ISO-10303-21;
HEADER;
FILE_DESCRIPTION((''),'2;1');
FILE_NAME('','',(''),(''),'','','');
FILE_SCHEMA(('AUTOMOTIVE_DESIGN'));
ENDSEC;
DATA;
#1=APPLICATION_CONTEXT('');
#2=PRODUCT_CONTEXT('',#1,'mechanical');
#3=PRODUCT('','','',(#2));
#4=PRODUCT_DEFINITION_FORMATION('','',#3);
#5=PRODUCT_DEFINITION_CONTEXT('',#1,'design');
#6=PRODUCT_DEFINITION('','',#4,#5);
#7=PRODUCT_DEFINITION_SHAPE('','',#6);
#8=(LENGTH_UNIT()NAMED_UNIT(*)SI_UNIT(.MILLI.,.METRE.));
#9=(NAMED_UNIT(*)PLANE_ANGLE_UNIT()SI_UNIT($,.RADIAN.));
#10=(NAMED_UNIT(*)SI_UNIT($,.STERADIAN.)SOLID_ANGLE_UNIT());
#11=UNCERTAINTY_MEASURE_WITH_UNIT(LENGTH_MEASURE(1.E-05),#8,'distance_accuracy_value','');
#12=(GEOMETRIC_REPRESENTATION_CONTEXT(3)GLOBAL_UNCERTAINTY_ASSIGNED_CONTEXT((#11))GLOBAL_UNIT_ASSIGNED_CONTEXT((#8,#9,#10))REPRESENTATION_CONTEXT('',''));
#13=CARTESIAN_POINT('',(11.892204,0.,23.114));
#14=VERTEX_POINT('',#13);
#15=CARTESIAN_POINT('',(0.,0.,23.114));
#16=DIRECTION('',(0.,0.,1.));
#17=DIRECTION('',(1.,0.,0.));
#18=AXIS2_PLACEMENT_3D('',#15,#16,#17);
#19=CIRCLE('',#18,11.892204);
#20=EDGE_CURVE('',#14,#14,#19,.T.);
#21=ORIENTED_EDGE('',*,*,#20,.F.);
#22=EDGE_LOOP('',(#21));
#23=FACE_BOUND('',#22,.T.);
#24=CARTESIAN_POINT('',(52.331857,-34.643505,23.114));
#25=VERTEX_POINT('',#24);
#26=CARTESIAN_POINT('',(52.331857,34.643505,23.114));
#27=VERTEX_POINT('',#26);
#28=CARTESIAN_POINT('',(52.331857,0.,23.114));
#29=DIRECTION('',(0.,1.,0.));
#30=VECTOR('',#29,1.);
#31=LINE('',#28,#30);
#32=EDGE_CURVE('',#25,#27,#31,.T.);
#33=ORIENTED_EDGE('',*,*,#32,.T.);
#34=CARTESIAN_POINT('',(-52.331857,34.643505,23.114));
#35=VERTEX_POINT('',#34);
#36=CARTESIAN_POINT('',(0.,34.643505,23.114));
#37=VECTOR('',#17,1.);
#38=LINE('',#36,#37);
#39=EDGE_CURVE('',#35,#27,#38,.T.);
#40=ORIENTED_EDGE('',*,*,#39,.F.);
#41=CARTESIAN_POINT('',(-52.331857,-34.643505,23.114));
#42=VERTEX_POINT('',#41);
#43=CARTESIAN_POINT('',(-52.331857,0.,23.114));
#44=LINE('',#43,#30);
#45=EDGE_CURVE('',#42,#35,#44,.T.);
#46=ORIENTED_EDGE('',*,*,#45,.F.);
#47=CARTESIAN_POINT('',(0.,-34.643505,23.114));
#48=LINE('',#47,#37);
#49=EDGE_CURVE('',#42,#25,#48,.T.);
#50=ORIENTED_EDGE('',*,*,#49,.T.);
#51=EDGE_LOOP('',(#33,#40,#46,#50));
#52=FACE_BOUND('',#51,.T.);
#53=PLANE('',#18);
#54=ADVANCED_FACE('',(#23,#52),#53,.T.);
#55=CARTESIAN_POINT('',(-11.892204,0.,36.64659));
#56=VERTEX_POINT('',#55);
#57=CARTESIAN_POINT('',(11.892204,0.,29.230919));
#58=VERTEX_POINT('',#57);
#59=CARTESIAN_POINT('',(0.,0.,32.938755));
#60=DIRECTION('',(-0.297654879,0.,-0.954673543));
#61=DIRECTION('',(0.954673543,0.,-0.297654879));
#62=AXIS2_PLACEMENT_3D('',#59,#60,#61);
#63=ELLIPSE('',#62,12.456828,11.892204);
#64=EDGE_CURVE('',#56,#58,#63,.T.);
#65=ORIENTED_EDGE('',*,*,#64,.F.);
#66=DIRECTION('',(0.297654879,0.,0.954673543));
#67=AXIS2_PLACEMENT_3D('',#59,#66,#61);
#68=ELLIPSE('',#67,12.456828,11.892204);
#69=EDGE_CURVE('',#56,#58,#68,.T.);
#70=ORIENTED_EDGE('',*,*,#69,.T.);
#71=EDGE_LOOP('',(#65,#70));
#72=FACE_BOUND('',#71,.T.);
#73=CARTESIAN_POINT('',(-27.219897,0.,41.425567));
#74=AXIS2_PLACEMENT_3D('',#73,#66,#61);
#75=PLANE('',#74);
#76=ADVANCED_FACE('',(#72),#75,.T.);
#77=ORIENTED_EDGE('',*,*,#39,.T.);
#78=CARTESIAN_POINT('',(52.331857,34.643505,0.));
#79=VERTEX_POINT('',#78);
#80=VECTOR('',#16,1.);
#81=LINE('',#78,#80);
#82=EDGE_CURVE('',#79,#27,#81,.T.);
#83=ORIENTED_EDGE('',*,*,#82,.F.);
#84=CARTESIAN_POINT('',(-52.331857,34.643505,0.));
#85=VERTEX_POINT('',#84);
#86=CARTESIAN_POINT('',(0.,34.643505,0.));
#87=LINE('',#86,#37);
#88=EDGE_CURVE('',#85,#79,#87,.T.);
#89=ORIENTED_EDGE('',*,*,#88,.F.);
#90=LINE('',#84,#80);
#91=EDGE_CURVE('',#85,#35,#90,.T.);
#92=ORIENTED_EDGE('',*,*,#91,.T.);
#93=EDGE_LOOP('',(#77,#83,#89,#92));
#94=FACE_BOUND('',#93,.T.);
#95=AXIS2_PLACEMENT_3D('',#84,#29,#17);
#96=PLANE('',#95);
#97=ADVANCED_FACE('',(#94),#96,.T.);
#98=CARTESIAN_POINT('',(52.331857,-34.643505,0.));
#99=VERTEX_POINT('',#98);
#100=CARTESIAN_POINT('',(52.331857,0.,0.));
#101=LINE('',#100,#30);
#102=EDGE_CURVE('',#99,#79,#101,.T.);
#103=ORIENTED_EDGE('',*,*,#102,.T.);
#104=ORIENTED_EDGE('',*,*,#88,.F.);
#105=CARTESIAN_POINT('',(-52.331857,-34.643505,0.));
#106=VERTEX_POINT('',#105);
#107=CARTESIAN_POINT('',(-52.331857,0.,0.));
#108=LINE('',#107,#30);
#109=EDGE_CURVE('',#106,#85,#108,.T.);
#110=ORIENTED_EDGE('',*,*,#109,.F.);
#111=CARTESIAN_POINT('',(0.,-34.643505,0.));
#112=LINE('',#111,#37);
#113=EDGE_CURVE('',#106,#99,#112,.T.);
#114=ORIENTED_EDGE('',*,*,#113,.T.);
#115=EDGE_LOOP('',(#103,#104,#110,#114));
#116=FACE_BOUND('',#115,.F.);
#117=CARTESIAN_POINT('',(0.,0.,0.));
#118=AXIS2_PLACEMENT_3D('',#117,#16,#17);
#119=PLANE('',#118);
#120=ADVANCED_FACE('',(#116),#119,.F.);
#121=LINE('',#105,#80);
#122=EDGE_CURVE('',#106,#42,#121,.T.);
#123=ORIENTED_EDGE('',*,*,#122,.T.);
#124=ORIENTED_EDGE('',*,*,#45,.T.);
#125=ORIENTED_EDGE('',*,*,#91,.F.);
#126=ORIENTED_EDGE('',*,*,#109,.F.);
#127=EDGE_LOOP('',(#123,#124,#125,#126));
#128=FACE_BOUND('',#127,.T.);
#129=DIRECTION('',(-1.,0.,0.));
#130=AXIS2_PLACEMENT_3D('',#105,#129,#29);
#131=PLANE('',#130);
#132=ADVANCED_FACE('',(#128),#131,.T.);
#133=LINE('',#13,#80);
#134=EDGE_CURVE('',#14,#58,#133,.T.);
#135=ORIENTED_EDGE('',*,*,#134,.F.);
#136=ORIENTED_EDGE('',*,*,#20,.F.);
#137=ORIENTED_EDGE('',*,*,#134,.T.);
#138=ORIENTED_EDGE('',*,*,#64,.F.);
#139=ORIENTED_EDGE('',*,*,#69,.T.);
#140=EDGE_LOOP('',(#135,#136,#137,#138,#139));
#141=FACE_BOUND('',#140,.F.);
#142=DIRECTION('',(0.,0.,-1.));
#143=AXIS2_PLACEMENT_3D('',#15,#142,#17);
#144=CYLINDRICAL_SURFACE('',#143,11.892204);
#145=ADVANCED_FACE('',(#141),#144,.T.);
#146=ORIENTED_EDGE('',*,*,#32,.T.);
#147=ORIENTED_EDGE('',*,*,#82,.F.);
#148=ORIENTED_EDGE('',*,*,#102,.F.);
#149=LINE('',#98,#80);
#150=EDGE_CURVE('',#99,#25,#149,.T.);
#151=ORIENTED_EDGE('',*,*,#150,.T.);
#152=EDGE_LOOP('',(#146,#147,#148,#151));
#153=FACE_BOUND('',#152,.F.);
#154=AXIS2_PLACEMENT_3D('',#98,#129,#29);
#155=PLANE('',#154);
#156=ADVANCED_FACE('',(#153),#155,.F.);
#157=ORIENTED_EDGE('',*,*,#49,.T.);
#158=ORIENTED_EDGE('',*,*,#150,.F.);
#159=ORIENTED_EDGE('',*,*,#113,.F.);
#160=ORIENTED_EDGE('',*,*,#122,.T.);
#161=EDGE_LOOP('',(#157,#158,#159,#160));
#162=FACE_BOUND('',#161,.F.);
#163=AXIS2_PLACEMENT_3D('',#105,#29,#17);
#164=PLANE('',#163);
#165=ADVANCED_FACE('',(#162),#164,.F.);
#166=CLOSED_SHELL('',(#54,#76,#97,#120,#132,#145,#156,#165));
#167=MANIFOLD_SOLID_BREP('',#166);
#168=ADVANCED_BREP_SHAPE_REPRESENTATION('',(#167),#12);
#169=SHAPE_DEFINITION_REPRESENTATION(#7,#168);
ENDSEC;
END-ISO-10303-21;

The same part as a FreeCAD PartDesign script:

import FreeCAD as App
import Part
import Sketcher

doc = App.newDocument("Part")
params = doc.addObject("Spreadsheet::Sheet", "Params")
for row, (alias, value) in enumerate([
    ("pad1_length", "0.91 in"),
    ("pad2_length", "0.71 in"),
    ("pocket1_length", "1 in"),
    ("pocket2_length", "1 in"),
], start=1):
    params.set(f"A{row}", alias)
    params.set(f"B{row}", "=" + value)
    params.setAlias(f"B{row}", alias)

body = doc.addObject("PartDesign::Body", "Body")

sketch1 = doc.addObject("Sketcher::SketchObject", "Sketch")
body.addObject(sketch1)
sketch1.AttachmentSupport = (doc.XY_Plane, [""])
sketch1.MapMode = "FlatFace"
sketch1.addGeometry([
    Part.LineSegment(App.Vector(-52, 35, 0), App.Vector(-52, -35, 0)),
    Part.LineSegment(App.Vector(-52, -35, 0), App.Vector(52, -35, 0)),
    Part.LineSegment(App.Vector(52, -35, 0), App.Vector(52, 35, 0)),
    Part.LineSegment(App.Vector(52, 35, 0), App.Vector(-52, 35, 0)),
], False)
sketch1.addConstraint([
    Sketcher.Constraint("Coincident", 0, 2, 1, 1),
    Sketcher.Constraint("Coincident", 1, 2, 2, 1),
    Sketcher.Constraint("Coincident", 2, 2, 3, 1),
    Sketcher.Constraint("Coincident", 3, 2, 0, 1),
    Sketcher.Constraint("Vertical", 0),
    Sketcher.Constraint("Horizontal", 1),
    Sketcher.Constraint("Vertical", 2),
    Sketcher.Constraint("Horizontal", 3),
    Sketcher.Constraint("Symmetric", 0, 2, 2, 2, -1, 1),
    Sketcher.Constraint("DistanceY", 0, 2, 0, 1, 69.28701),
    Sketcher.Constraint("DistanceX", 1, 1, 1, 2, 104.663714),
])
pad1 = doc.addObject("PartDesign::Pad", "Pad")
body.addObject(pad1)
pad1.Profile = sketch1
pad1.setExpression("Length", "Params.pad1_length")

sketch2 = doc.addObject("Sketcher::SketchObject", "Sketch001")
body.addObject(sketch2)
sketch2.AttachmentSupport = (doc.XY_Plane, [""])
sketch2.MapMode = "FlatFace"
sketch2.AttachmentOffset = App.Placement(App.Vector(0, 0, 0.91 * 25.4), App.Rotation())
sketch2.addGeometry(Part.Circle(App.Vector(0, 0, 0), App.Vector(0, 0, 1), 12), False)
sketch2.addConstraint([
    Sketcher.Constraint("Coincident", 0, 3, -1, 1),
    Sketcher.Constraint("Diameter", 0, 23.784408),
])
pad2 = doc.addObject("PartDesign::Pad", "Pad001")
body.addObject(pad2)
pad2.Profile = sketch2
pad2.setExpression("Length", "Params.pad2_length")

sketch3 = doc.addObject("Sketcher::SketchObject", "Sketch002")
body.addObject(sketch3)
sketch3.AttachmentSupport = (doc.XZ_Plane, [""])
sketch3.MapMode = "FlatFace"
sketch3.addGeometry([
    Part.LineSegment(App.Vector(21, 43, 0), App.Vector(-27, 41, 0)),
    Part.LineSegment(App.Vector(-27, 41, 0), App.Vector(21, 26, 0)),
    Part.LineSegment(App.Vector(21, 26, 0), App.Vector(21, 43, 0)),
], False)
sketch3.addConstraint([
    Sketcher.Constraint("Coincident", 0, 2, 1, 1),
    Sketcher.Constraint("Coincident", 1, 2, 2, 1),
    Sketcher.Constraint("Coincident", 2, 2, 0, 1),
    Sketcher.Constraint("Vertical", 2),
    Sketcher.Constraint("DistanceY", 2, 1, 2, 2, 17.046807),
    Sketcher.Constraint("DistanceY", -1, 1, 1, 2, 26.395051),
    Sketcher.Constraint("DistanceX", 0, 2, 1, 2, 48.207629),
    Sketcher.Constraint("DistanceY", 0, 2, 2, 2, 2.016291),
    Sketcher.Constraint("DistanceX", 0, 2, -1, 1, 27.219897),
])
pocket1 = doc.addObject("PartDesign::Pocket", "Pocket")
body.addObject(pocket1)
pocket1.Profile = sketch3
pocket1.setExpression("Length", "Params.pocket1_length")

sketch4 = doc.addObject("Sketcher::SketchObject", "Sketch003")
body.addObject(sketch4)
sketch4.AttachmentSupport = (doc.XZ_Plane, [""])
sketch4.MapMode = "FlatFace"
sketch4.addGeometry([
    Part.LineSegment(App.Vector(21, 43, 0), App.Vector(-27, 41, 0)),
    Part.LineSegment(App.Vector(-27, 41, 0), App.Vector(21, 26, 0)),
    Part.LineSegment(App.Vector(21, 26, 0), App.Vector(21, 43, 0)),
], False)
sketch4.addConstraint([
    Sketcher.Constraint("Coincident", 0, 2, 1, 1),
    Sketcher.Constraint("Coincident", 1, 2, 2, 1),
    Sketcher.Constraint("Coincident", 2, 2, 0, 1),
    Sketcher.Constraint("Vertical", 2),
    Sketcher.Constraint("DistanceY", 2, 1, 2, 2, 17.046807),
    Sketcher.Constraint("DistanceY", -1, 1, 1, 2, 26.395051),
    Sketcher.Constraint("DistanceX", 0, 2, 1, 2, 48.207629),
    Sketcher.Constraint("DistanceY", 0, 2, 2, 2, 2.016291),
    Sketcher.Constraint("DistanceX", 0, 2, -1, 1, 27.219897),
])
pocket2 = doc.addObject("PartDesign::Pocket", "Pocket001")
body.addObject(pocket2)
pocket2.Profile = sketch4
pocket2.setExpression("Length", "Params.pocket2_length")
pocket2.Reversed = True

doc.recompute()
